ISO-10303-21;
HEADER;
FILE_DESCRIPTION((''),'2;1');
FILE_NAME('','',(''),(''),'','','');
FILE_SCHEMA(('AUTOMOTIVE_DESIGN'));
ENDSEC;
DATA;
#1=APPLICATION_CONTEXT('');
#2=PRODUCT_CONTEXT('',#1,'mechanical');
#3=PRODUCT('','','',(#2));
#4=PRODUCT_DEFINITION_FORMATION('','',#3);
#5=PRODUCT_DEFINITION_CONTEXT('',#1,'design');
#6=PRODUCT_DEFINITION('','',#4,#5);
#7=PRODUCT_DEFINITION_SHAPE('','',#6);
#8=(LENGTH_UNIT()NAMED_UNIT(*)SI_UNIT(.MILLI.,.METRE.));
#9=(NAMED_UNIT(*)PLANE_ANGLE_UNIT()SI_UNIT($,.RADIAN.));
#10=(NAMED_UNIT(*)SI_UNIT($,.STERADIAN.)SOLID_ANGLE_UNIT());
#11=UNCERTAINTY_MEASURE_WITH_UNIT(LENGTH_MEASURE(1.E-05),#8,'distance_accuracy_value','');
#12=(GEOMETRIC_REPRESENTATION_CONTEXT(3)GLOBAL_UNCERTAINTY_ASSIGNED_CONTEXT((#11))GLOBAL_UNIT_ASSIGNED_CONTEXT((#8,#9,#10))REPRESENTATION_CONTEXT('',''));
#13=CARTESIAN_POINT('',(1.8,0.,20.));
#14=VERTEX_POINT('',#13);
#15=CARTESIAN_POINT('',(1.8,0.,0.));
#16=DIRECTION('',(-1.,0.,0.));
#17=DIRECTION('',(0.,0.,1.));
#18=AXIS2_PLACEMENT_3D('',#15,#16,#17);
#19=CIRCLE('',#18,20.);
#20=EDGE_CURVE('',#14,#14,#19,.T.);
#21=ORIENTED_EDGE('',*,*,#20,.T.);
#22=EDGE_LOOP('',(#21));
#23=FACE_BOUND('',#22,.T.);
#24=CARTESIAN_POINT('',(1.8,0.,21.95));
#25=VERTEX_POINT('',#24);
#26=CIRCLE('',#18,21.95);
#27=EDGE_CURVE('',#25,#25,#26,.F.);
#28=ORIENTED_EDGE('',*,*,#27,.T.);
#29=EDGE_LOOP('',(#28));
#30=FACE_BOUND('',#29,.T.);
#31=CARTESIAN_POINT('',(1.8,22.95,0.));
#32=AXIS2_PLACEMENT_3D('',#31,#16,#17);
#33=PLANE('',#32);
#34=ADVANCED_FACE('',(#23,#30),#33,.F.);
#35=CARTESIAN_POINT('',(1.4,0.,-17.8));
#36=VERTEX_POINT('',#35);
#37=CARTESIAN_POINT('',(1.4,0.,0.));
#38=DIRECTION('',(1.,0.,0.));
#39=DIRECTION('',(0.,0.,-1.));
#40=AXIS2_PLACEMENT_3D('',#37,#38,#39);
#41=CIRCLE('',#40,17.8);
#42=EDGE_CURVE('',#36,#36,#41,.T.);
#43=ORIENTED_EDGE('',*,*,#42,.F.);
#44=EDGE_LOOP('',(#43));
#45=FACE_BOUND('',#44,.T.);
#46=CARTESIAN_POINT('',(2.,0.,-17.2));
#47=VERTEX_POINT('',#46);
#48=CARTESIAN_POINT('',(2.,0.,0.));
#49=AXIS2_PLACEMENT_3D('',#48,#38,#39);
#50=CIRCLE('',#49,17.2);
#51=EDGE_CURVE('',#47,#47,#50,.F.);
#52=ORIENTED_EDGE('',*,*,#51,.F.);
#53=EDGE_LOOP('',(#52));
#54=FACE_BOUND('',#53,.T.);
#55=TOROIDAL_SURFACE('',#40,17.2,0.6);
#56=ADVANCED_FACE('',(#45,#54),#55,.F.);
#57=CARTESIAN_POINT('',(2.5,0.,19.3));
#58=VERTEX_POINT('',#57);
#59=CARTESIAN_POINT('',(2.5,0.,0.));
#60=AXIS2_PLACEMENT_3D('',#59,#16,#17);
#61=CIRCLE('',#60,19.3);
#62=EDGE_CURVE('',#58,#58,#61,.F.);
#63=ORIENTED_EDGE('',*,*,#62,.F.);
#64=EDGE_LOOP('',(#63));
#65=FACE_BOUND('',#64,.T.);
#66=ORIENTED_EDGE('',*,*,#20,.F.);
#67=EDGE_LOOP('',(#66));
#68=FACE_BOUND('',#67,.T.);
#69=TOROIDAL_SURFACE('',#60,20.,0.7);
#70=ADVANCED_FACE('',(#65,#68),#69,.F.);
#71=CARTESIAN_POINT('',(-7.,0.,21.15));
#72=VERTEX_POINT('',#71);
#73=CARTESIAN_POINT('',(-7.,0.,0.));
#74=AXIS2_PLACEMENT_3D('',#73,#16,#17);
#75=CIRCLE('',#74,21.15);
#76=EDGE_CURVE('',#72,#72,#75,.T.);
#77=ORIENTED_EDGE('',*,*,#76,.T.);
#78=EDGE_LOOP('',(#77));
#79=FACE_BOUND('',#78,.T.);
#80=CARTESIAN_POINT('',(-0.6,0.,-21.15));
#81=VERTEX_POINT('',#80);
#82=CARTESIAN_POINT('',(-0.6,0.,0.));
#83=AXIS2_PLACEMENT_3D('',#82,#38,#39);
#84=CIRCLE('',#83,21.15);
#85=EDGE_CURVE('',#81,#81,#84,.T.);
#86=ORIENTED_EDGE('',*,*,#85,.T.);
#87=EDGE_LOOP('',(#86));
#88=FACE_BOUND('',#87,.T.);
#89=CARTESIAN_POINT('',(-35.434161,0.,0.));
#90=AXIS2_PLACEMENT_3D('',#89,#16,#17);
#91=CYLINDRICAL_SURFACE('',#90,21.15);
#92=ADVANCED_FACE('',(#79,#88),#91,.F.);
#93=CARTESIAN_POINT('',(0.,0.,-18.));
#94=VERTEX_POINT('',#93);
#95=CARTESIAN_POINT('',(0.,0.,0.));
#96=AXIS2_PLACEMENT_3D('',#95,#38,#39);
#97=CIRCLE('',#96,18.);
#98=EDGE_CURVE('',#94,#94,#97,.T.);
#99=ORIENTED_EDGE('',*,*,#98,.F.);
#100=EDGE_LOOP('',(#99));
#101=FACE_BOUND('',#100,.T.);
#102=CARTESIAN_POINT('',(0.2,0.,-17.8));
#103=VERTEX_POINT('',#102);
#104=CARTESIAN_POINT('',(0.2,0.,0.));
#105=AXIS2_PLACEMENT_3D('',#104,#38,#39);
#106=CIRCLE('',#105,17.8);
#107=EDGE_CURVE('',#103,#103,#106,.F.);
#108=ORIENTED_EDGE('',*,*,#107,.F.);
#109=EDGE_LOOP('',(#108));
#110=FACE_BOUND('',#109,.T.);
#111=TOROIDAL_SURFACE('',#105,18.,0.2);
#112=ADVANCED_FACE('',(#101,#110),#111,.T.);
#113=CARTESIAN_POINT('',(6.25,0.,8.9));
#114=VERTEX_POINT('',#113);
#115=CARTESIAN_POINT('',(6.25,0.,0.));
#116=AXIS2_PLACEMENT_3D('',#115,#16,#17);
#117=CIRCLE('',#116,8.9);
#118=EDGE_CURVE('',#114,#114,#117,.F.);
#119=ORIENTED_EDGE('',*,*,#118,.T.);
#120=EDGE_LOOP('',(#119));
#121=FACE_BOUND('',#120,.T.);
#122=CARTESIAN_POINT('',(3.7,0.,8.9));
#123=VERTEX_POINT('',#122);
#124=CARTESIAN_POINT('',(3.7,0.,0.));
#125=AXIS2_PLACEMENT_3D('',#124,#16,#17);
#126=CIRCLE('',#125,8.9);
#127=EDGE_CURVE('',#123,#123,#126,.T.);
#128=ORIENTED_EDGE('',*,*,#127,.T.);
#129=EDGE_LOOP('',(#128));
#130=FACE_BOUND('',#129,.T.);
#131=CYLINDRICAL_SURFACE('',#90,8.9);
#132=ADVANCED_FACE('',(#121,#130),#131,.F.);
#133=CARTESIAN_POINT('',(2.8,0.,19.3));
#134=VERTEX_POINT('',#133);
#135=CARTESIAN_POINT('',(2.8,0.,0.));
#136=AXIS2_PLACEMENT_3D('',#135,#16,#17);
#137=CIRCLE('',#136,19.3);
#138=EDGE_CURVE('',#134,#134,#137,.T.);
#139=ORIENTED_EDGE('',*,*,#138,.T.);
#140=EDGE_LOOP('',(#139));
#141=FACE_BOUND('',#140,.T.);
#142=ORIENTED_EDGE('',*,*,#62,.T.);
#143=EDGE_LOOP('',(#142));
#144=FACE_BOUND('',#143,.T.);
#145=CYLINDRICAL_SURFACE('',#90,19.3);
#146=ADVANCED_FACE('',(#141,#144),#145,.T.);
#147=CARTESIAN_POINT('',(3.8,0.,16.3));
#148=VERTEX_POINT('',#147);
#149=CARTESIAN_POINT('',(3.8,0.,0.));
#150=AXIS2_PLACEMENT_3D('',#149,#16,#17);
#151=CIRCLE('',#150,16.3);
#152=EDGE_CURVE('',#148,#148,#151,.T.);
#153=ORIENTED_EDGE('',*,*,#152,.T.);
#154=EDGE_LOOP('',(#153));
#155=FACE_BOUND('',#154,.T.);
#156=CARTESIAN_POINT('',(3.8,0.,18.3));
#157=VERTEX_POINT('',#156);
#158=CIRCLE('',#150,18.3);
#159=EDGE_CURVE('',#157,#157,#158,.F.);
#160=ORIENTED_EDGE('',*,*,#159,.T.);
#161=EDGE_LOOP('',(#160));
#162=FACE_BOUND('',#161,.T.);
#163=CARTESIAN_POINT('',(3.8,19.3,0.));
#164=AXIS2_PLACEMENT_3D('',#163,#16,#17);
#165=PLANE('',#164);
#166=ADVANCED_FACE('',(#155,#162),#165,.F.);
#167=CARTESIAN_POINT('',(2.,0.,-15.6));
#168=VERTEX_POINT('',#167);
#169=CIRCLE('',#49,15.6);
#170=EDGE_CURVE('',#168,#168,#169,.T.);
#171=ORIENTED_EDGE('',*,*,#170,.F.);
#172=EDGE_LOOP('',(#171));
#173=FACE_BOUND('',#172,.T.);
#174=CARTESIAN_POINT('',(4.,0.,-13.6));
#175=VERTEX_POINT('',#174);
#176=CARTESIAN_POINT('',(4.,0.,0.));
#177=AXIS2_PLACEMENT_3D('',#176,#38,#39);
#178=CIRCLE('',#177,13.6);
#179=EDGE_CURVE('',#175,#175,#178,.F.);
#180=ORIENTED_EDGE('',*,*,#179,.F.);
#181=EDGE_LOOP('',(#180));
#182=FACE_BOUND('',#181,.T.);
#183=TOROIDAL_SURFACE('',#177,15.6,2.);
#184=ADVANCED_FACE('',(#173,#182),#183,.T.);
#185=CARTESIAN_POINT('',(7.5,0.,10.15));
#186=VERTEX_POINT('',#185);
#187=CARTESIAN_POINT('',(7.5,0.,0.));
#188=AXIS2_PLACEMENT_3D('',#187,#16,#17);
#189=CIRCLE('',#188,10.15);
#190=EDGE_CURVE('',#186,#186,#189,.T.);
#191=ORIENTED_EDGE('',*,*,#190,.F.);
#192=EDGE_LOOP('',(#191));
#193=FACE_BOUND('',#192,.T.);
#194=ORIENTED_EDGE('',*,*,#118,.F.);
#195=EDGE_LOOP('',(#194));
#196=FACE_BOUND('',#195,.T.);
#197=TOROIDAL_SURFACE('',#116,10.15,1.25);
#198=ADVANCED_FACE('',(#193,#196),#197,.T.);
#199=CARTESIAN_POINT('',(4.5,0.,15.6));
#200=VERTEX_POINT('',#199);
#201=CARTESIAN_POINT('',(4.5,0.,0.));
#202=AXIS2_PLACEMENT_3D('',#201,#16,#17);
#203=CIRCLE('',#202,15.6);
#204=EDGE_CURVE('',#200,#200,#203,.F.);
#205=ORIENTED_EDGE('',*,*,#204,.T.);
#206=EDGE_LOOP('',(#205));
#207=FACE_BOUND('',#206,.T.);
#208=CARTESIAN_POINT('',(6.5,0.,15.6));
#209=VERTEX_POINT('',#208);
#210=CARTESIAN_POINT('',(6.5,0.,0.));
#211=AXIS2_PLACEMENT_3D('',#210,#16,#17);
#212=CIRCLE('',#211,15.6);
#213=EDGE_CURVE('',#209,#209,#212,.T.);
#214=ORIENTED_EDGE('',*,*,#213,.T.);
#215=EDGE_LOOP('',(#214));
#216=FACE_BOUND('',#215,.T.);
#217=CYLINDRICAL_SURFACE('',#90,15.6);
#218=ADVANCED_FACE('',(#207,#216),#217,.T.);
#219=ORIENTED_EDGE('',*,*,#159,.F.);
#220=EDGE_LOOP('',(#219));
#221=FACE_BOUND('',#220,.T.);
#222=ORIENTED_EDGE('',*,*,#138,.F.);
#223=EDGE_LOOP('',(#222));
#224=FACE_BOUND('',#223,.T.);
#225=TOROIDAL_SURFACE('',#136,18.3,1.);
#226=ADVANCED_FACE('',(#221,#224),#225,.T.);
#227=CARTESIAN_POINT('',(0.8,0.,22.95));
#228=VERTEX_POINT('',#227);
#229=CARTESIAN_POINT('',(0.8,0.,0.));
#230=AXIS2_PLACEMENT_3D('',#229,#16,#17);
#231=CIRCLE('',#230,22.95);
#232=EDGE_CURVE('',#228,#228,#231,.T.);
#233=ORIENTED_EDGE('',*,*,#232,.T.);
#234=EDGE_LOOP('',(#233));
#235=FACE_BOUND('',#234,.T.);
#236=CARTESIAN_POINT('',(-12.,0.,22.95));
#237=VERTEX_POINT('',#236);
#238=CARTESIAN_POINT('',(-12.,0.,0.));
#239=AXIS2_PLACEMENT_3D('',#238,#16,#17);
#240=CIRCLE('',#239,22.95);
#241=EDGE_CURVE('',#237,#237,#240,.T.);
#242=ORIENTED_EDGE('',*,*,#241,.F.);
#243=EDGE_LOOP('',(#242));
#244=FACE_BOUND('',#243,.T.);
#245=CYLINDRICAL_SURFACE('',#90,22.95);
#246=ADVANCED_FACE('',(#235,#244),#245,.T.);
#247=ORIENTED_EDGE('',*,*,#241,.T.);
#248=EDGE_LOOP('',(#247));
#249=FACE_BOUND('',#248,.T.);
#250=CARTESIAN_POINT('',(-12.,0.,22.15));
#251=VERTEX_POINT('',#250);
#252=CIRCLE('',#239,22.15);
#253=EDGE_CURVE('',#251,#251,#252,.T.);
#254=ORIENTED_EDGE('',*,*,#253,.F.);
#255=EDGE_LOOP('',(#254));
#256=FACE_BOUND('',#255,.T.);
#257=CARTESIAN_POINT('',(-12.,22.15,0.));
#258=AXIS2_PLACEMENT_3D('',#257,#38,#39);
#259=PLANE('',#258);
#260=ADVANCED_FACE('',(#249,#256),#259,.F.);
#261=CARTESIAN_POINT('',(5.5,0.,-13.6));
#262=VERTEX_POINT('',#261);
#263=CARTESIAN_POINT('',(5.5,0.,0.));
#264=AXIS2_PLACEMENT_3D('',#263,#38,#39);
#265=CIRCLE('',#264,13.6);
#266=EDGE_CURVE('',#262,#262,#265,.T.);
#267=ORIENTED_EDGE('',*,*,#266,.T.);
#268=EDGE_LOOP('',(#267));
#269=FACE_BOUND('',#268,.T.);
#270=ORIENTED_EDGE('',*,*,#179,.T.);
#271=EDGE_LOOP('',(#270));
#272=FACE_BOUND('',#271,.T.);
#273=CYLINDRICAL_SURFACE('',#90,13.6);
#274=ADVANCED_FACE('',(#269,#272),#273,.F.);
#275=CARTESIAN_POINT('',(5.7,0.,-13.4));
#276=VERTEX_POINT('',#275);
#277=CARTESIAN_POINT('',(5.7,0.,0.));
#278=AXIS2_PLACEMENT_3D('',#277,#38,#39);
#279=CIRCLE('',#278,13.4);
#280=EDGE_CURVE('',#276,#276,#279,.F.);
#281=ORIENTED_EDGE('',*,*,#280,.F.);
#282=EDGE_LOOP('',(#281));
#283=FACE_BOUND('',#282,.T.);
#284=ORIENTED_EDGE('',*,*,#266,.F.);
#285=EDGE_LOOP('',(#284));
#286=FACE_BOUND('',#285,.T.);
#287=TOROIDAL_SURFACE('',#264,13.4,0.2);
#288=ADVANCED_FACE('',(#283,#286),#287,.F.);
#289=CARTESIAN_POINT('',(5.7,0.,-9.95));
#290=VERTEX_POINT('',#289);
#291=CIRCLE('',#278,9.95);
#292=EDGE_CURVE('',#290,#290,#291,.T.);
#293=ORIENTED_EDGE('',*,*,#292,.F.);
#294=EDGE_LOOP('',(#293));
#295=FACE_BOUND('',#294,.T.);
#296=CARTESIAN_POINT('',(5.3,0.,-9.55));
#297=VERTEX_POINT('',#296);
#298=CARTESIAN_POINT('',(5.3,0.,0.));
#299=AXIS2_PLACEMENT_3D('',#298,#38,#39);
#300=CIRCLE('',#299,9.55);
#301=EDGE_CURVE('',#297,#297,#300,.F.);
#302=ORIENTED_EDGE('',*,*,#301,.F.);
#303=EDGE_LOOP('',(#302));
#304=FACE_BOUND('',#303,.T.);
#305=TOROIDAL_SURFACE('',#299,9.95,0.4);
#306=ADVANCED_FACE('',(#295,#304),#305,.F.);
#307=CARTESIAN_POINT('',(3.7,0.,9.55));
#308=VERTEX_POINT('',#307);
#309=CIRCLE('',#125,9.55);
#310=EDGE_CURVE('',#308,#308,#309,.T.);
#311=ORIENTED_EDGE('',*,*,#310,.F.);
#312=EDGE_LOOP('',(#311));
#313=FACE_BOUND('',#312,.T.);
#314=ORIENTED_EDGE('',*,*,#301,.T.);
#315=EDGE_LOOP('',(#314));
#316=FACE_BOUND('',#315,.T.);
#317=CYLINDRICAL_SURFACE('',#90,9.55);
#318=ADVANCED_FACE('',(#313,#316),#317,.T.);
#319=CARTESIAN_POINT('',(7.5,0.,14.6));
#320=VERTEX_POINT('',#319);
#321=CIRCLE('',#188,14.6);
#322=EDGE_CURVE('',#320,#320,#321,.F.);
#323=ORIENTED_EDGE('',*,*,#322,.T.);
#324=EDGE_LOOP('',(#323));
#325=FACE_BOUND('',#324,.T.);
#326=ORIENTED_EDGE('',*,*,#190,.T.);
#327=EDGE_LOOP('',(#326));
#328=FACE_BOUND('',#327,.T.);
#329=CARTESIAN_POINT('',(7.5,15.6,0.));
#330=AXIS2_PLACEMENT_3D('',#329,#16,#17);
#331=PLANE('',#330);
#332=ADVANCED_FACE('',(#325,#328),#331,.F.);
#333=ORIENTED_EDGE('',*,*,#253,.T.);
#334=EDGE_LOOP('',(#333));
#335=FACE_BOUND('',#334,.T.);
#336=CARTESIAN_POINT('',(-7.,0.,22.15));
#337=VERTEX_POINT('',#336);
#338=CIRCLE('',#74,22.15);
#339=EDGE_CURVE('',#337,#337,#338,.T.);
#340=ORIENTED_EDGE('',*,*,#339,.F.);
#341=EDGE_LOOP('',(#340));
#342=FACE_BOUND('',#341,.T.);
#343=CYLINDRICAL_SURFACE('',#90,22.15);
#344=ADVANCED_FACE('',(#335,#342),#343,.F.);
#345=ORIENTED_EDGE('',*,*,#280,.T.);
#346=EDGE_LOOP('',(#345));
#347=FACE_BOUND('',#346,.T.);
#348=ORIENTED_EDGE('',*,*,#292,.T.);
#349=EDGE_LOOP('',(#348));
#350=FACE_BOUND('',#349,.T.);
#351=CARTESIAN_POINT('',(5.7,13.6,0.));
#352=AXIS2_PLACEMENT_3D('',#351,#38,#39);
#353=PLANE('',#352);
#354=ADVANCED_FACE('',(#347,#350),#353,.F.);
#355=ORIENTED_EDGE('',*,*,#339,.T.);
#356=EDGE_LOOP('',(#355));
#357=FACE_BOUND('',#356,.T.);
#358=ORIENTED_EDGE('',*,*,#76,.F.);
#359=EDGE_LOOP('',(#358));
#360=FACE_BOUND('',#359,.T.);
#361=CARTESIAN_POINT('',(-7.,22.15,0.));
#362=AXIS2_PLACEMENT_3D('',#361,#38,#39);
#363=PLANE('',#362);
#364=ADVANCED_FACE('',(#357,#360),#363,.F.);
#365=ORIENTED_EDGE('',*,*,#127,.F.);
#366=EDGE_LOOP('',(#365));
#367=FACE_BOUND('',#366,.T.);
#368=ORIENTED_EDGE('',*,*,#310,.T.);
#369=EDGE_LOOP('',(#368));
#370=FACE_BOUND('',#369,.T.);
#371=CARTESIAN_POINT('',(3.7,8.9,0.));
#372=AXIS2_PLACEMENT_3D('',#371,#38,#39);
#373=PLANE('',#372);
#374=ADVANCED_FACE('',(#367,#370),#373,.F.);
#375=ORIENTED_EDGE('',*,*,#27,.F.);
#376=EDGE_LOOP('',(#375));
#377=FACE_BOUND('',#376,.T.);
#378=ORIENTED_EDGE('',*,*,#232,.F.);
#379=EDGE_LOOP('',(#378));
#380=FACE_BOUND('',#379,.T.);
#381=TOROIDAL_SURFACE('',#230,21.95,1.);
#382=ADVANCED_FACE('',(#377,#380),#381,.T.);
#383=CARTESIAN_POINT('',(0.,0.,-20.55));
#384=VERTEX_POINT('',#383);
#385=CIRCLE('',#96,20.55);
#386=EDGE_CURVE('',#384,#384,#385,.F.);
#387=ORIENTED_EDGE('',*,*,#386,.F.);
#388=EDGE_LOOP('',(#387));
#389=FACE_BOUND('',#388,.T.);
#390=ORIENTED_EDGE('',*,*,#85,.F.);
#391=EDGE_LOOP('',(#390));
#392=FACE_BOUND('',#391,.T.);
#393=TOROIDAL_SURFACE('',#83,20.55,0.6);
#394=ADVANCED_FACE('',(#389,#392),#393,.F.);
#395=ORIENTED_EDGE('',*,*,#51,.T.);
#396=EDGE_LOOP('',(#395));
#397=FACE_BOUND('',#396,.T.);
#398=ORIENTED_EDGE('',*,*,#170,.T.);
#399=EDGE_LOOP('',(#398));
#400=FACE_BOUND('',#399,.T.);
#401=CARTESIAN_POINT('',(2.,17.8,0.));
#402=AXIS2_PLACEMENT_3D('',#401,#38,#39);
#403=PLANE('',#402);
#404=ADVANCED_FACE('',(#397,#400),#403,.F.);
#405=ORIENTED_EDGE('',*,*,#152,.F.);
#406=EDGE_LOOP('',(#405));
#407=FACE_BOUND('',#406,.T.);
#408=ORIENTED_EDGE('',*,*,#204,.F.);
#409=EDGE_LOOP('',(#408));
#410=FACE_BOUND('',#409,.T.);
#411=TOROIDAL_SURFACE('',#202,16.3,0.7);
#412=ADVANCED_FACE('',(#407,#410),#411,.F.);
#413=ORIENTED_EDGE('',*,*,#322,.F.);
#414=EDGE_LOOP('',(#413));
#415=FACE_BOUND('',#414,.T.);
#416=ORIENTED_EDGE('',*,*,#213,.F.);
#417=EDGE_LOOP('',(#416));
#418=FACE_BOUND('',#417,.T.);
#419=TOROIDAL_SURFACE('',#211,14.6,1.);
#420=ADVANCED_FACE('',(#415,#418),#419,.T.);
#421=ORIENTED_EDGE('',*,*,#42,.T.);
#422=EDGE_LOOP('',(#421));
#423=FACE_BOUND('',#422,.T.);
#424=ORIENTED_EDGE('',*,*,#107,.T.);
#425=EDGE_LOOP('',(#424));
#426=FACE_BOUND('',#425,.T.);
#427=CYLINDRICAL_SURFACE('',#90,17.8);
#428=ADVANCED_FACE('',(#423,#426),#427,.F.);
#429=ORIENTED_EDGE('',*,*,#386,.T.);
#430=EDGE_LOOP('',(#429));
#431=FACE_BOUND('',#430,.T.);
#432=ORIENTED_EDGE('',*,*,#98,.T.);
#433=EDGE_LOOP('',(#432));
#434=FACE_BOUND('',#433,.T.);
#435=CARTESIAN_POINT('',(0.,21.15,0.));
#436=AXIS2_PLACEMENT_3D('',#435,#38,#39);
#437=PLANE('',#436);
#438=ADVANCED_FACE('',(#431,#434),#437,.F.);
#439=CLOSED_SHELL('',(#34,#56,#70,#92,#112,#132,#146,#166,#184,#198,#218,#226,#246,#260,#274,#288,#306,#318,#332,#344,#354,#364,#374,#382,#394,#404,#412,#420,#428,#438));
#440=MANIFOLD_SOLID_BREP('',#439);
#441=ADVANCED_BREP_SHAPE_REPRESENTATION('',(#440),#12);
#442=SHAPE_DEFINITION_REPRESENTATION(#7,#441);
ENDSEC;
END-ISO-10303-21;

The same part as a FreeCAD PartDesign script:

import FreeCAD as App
import Part
import Sketcher
from FreeCAD import Vector
Q = App.Units.Quantity


def edges_at(feature, points):
    """Names of the edges that pass closest to the given points."""
    edges = feature.Shape.Edges
    near = lambda p: min(range(len(edges)), key=lambda i: edges[i].distToShape(Part.Vertex(*p))[0])
    return sorted({f"Edge{near(p) + 1}" for p in points})


def add_polygon(sketch, points):
    """Adds a closed chain of lines whose ends are joined by coincident constraints."""
    first, n = sketch.GeometryCount, len(points)
    for a, b in zip(points, points[1:] + points[:1]):
        sketch.addGeometry(Part.LineSegment(App.Vector(*a, 0), App.Vector(*b, 0)), False)
    for i in range(n):
        sketch.addConstraint(Sketcher.Constraint("Coincident", first + i, 2, first + (i + 1) % n, 1))

doc = App.newDocument("Part")
body = doc.addObject("PartDesign::Body", "Body")

# Sketch on XY plane
sketch1 = body.newObject("Sketcher::SketchObject", "Sketch")
sketch1.AttachmentSupport = (doc.getObject("XY_Plane"), [""])
sketch1.MapMode = "FlatFace"
add_polygon(sketch1, [(-7, 21.1), (0, 21.1), (0, 17.8), (2, 17.8), (2, 13.6), (5.7, 13.6), (5.7, 9.6), (3.7, 9.6), (3.7, 8.9), (7.5, 8.9), (7.5, 15.6), (3.8, 15.6), (3.8, 19.3), (1.8, 19.3), (1.8, 22.9), (-12, 22.9), (-12, 22.1), (-7, 22.1)])  # lines 0-17
sketch1.addConstraint([
    Sketcher.Constraint("Horizontal", 0),
    Sketcher.Constraint("Vertical", 1),
    Sketcher.Constraint("Horizontal", 2),
    Sketcher.Constraint("Vertical", 3),
    Sketcher.Constraint("Horizontal", 4),
    Sketcher.Constraint("Vertical", 5),
    Sketcher.Constraint("Horizontal", 6),
    Sketcher.Constraint("Vertical", 7),
    Sketcher.Constraint("Horizontal", 8),
    Sketcher.Constraint("Vertical", 9),
    Sketcher.Constraint("Horizontal", 10),
    Sketcher.Constraint("Vertical", 11),
    Sketcher.Constraint("Horizontal", 12),
    Sketcher.Constraint("Vertical", 13),
    Sketcher.Constraint("Horizontal", 14),
    Sketcher.Constraint("Vertical", 15),
    Sketcher.Constraint("Horizontal", 16),
    Sketcher.Constraint("Vertical", 17),
    Sketcher.Constraint("PointOnObject", 0, 2, -2),
    Sketcher.Constraint("Equal", 2, 6),
    Sketcher.Constraint("Equal", 4, 10),
    Sketcher.Constraint("Equal", 6, 12),
    Sketcher.Constraint("Equal", 10, 11),
    Sketcher.Constraint("DistanceX", 0, 1, 0, 2, Q("7 mm")),
    Sketcher.Constraint("DistanceX", 2, 1, 2, 2, Q("2 mm")),
    Sketcher.Constraint("DistanceX", 16, 1, 16, 2, Q("5 mm")),
    Sketcher.Constraint("DistanceY", 17, 2, 17, 1, Q("1 mm")),
    Sketcher.Constraint("DistanceX", 4, 1, 4, 2, Q("3.7 mm")),
    Sketcher.Constraint("DistanceX", 8, 1, 8, 2, Q("3.8 mm")),
    Sketcher.Constraint("DistanceY", 3, 2, 3, 1, Q("4.2 mm")),
    Sketcher.Constraint("DistanceY", 9, 1, 9, 2, Q("6.7 mm")),
    Sketcher.Constraint("DistanceY", 15, 2, 15, 1, Q("0.8 mm")),
    Sketcher.Constraint("DistanceY", 4, 2, 9, 2, Q("2 mm")),
    Sketcher.Constraint("DistanceY", 1, 2, 1, 1, Q("3.35 mm")),
    Sketcher.Constraint("DistanceY", 5, 2, 5, 1, Q("4.05 mm")),
    Sketcher.Constraint("DistanceY", -1, 1, 1, 2, Q("17.8 mm")),
])
revolution = body.newObject("PartDesign::Revolution", "Revolution")
revolution.Profile = sketch1
revolution.ReferenceAxis = (sketch1, ["H_Axis"])
revolution.Angle = 360
doc.recompute()

fillet = body.newObject("PartDesign::Fillet", "Fillet")
fillet.Base = (revolution, edges_at(revolution, [(7.5, 0, -8.9)]))
fillet.Radius = 1.25
doc.recompute()

fillet2 = body.newObject("PartDesign::Fillet", "Fillet001")
fillet2.Base = (fillet, edges_at(fillet, [(1.8, 0, -22.95), (3.8, 0, -19.3), (7.5, 0, -15.6)]))
fillet2.Radius = 1
doc.recompute()

fillet3 = body.newObject("PartDesign::Fillet", "Fillet002")
fillet3.Base = (fillet2, edges_at(fillet2, [(1.8, 0, -19.3), (3.8, 0, -15.6)]))
fillet3.Radius = 0.7
doc.recompute()

fillet4 = body.newObject("PartDesign::Fillet", "Fillet003")
fillet4.Base = (fillet3, edges_at(fillet3, [(5.7, 0, -9.55)]))
fillet4.Radius = 0.4
doc.recompute()

fillet5 = body.newObject("PartDesign::Fillet", "Fillet004")
fillet5.Base = (fillet4, edges_at(fillet4, [(5.7, 0, -13.6)]))
fillet5.Radius = 0.2
doc.recompute()

fillet6 = body.newObject("PartDesign::Fillet", "Fillet005")
fillet6.Base = (fillet5, edges_at(fillet5, [(0, 0, -21.15), (2, 0, -17.8)]))
fillet6.Radius = 0.6
doc.recompute()

fillet7 = body.newObject("PartDesign::Fillet", "Fillet006")
fillet7.Base = (fillet6, edges_at(fillet6, [(2, 0, -13.6)]))
fillet7.Radius = 2
doc.recompute()

fillet8 = body.newObject("PartDesign::Fillet", "Fillet007")
fillet8.Base = (fillet7, edges_at(fillet7, [(0, 0, -17.8)]))
fillet8.Radius = 0.2

doc.recompute()
